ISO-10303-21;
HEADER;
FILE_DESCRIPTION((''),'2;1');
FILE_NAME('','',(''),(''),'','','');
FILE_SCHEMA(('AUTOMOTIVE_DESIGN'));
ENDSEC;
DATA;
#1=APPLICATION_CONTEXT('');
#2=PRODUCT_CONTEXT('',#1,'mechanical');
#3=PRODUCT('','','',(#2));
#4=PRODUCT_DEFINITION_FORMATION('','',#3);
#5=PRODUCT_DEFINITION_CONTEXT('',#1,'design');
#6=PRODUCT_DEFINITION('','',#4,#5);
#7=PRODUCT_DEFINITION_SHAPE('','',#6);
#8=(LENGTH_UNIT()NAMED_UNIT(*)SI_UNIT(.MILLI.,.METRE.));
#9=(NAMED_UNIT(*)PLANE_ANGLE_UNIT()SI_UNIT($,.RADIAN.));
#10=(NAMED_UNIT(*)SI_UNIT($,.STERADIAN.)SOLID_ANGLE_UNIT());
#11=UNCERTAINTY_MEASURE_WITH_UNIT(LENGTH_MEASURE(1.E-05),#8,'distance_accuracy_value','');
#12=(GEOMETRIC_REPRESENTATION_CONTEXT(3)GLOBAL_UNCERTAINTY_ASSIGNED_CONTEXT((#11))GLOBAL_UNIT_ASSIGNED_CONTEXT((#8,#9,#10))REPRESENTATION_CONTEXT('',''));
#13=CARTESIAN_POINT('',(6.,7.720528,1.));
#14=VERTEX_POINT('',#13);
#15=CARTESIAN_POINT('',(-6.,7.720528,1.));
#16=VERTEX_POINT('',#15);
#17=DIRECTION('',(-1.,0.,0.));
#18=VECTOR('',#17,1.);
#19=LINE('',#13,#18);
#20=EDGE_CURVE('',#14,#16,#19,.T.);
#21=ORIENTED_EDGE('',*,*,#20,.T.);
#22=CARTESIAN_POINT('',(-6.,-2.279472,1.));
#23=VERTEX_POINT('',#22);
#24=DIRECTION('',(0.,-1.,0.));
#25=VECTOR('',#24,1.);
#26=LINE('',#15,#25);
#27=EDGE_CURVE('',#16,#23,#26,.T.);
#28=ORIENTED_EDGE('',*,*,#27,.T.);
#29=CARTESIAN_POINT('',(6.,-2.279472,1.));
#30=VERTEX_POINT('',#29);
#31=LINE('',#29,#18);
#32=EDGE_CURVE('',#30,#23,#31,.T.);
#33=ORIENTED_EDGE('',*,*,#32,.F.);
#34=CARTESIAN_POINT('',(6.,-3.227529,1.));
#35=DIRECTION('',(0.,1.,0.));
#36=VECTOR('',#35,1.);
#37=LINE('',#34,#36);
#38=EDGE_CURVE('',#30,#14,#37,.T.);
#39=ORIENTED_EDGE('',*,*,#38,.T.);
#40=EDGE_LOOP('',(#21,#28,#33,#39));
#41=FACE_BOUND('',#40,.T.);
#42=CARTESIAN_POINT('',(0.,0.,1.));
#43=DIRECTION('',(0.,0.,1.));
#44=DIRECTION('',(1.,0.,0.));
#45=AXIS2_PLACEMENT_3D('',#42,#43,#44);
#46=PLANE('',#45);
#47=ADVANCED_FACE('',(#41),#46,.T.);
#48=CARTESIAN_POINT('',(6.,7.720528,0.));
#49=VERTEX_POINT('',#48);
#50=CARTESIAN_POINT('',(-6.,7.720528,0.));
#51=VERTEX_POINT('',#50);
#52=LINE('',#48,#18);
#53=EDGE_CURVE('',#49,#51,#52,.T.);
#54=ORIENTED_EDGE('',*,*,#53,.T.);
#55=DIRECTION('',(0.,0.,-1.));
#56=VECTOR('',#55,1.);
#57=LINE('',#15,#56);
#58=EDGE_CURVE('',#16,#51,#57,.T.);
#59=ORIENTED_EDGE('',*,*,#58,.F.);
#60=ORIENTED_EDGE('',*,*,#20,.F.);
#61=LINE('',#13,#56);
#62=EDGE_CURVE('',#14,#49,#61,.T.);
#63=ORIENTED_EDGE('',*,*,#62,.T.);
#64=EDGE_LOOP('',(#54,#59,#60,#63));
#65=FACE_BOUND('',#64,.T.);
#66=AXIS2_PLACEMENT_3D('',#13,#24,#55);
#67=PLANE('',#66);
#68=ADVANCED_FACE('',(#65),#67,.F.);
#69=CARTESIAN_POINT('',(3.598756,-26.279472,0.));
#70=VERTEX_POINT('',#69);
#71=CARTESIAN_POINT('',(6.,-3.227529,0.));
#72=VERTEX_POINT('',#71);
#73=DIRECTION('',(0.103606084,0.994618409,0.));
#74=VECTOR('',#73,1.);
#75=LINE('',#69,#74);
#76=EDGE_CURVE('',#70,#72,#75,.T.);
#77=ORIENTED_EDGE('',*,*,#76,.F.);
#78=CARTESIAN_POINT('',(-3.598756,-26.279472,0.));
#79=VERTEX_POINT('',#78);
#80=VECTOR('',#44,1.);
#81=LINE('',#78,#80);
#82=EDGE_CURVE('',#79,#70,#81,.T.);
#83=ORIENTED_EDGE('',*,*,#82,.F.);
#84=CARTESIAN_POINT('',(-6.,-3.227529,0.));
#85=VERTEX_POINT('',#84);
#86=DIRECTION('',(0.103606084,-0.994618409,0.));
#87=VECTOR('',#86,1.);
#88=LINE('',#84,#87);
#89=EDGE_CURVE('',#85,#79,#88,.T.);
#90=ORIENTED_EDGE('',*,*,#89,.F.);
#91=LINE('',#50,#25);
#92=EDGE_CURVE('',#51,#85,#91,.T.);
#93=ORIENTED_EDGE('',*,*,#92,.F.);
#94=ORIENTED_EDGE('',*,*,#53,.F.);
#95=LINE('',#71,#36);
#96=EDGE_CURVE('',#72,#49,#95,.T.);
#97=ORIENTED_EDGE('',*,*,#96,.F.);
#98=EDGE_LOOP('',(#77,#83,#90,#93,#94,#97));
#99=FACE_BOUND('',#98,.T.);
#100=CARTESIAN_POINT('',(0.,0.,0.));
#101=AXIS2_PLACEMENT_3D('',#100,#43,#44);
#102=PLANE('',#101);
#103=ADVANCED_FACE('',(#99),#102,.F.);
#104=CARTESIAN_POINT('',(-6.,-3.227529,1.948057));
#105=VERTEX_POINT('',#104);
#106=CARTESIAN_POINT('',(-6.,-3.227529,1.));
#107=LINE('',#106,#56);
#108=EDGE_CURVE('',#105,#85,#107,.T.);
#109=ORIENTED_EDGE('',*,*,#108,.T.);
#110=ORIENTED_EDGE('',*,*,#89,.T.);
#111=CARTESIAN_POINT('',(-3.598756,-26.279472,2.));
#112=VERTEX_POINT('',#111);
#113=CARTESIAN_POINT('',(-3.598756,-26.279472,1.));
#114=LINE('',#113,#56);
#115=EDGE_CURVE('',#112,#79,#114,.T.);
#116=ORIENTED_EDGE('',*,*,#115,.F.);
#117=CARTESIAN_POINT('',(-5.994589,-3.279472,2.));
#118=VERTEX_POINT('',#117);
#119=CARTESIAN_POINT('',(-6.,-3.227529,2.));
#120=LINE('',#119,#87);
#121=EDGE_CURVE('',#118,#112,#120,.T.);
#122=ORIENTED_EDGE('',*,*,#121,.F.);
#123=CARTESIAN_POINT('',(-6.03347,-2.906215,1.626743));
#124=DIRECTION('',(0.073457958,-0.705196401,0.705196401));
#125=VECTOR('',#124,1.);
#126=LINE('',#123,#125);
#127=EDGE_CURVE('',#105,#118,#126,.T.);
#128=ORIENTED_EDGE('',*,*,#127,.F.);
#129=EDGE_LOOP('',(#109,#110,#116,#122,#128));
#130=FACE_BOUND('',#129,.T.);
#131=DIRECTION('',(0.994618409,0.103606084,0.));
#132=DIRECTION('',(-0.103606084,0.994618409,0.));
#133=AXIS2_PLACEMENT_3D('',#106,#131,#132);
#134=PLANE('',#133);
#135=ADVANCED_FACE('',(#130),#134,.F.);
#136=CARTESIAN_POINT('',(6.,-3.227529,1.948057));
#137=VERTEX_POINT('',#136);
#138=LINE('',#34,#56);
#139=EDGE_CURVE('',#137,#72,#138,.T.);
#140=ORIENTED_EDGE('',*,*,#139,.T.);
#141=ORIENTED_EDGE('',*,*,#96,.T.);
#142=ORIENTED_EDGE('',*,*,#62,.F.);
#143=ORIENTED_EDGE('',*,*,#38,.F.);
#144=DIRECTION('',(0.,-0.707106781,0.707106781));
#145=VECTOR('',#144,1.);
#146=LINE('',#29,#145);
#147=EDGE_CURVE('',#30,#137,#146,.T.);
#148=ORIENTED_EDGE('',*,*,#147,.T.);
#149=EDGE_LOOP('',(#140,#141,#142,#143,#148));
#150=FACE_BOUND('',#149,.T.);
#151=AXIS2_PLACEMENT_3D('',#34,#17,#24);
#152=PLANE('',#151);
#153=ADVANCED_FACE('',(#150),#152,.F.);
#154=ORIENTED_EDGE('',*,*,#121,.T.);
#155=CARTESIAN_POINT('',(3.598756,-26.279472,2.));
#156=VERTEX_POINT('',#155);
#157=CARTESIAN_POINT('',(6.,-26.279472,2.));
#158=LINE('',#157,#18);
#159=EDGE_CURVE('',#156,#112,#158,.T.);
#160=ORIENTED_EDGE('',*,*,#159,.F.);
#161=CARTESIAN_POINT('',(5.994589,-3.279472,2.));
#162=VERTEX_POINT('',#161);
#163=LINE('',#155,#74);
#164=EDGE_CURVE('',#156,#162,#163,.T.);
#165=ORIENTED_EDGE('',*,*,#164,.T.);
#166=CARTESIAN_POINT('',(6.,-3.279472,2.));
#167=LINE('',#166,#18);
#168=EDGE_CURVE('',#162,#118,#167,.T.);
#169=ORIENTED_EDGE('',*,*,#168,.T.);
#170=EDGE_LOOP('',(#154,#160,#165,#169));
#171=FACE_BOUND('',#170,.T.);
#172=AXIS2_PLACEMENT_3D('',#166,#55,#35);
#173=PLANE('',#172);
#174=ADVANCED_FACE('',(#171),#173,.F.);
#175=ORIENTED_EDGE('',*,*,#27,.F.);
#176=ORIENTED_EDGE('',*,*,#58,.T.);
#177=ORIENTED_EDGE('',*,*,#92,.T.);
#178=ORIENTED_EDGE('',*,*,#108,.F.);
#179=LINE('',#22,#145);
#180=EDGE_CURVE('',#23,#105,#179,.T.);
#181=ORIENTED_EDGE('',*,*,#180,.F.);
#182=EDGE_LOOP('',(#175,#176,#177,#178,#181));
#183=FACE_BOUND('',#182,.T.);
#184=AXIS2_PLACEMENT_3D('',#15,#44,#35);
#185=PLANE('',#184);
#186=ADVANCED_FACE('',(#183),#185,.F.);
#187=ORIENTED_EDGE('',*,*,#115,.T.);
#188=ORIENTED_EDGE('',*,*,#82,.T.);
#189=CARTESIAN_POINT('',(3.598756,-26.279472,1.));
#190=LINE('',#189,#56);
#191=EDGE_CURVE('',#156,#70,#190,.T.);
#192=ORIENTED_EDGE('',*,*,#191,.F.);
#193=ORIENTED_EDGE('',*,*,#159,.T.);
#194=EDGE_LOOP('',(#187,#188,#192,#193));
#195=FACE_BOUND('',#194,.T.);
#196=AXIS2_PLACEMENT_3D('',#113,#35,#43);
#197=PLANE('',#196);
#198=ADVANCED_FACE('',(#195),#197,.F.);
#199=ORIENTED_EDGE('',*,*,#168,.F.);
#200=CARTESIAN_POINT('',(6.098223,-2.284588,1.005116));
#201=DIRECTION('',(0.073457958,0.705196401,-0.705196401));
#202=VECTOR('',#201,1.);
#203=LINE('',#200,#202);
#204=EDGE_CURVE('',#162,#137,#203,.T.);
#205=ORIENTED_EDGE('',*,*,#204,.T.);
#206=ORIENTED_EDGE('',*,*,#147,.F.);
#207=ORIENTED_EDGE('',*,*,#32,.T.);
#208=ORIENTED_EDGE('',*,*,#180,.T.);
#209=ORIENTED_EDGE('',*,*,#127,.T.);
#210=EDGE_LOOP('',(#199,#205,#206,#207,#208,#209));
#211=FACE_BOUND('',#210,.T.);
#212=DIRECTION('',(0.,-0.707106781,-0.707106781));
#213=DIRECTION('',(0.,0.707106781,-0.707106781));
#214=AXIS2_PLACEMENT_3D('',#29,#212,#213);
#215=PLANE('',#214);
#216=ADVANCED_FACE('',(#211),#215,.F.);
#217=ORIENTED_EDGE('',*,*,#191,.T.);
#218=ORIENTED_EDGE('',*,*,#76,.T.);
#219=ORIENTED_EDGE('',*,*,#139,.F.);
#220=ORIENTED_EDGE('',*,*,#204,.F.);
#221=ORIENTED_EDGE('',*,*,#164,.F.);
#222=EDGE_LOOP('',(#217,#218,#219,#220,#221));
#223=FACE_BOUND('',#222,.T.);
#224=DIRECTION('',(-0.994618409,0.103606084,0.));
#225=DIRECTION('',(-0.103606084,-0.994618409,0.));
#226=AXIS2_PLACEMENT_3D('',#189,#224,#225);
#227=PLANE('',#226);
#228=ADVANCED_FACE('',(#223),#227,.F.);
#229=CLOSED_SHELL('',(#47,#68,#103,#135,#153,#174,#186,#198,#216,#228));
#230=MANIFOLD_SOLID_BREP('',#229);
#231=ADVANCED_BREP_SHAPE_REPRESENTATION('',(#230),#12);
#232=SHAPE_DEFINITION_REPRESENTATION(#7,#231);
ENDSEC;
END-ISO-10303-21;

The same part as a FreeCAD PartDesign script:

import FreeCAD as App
import Part
import Sketcher
from FreeCAD import Vector
Q = App.Units.Quantity


def add_polygon(sketch, points):
    """Adds a closed chain of lines whose ends are joined by coincident constraints."""
    first, n = sketch.GeometryCount, len(points)
    for a, b in zip(points, points[1:] + points[:1]):
        sketch.addGeometry(Part.LineSegment(App.Vector(*a, 0), App.Vector(*b, 0)), False)
    for i in range(n):
        sketch.addConstraint(Sketcher.Constraint("Coincident", first + i, 2, first + (i + 1) % n, 1))

doc = App.newDocument("Part")
params = doc.addObject("Spreadsheet::Sheet", "Params")
for row, (alias, value) in enumerate([
    ("sketch1_width", "12 mm"),
    ("pad1_length", "1 mm"),
    ("sketch2_width", "24 mm"),
    ("sketch2_width2", "23 mm"),
    ("sketch2_height", "1 mm"),
    ("pad2_length", "12 mm"),
], start=1):
    params.set(f"A{row}", alias)
    params.set(f"B{row}", "=" + value)
    params.setAlias(f"B{row}", alias)

body = doc.addObject("PartDesign::Body", "Body")

# Sketch on XY plane
sketch1 = body.newObject("Sketcher::SketchObject", "Sketch")
sketch1.AttachmentSupport = (doc.getObject("XY_Plane"), [""])
sketch1.MapMode = "FlatFace"
add_polygon(sketch1, [(6, -3), (6, 8), (-6, 8), (-6, -3), (-4, -26), (4, -26)])  # lines 0-5
sketch1.addConstraint([
    Sketcher.Constraint("Vertical", 0),
    Sketcher.Constraint("Horizontal", 1),
    Sketcher.Constraint("Vertical", 2),
    Sketcher.Constraint("Horizontal", 4),
    Sketcher.Constraint("Symmetric", 2, 2, 5, 2, -2),
    Sketcher.Constraint("Equal", 3, 5),
    Sketcher.Constraint("DistanceX", 1, 2, 1, 1, Q("12 mm")),
    Sketcher.Constraint("DistanceY", 3, 2, 1, 2, Q("34 mm")),
    Sketcher.Constraint("DistanceX", 4, 1, 4, 2, Q("7.197512 mm")),
    Sketcher.Constraint("Distance", 3, Q("23.17667 mm")),
    Sketcher.Constraint("DistanceY", 2, 2, -1, 1, Q("3.227529 mm")),
])
sketch1.setExpression("Constraints[12]", "Params.sketch1_width")
pad1 = body.newObject("PartDesign::Pad", "Pad")
pad1.Profile = sketch1
pad1.setExpression("Length", "Params.pad1_length")

# Sketch on YZ plane
sketch2 = body.newObject("Sketcher::SketchObject", "Sketch001")
sketch2.AttachmentSupport = (doc.getObject("YZ_Plane"), [""])
sketch2.MapMode = "FlatFace"
add_polygon(sketch2, [(-26.3, 2), (-26.3, 1), (-2.3, 1), (-3.3, 2)])  # lines 0-3
sketch2.addConstraint([
    Sketcher.Constraint("Vertical", 0),
    Sketcher.Constraint("Horizontal", 1),
    Sketcher.Constraint("Horizontal", 3),
    Sketcher.Constraint("DistanceX", 1, 1, 1, 2, Q("24 mm")),
    Sketcher.Constraint("DistanceX", 3, 2, 3, 1, Q("23 mm")),
    Sketcher.Constraint("DistanceY", 0, 2, 0, 1, Q("1 mm")),
    Sketcher.Constraint("DistanceY", -1, 1, 0, 2, Q("1 mm")),
    Sketcher.Constraint("DistanceX", 0, 2, -1, 1, Q("26.279472 mm")),
])
sketch2.setExpression("Constraints[7]", "Params.sketch2_width")
sketch2.setExpression("Constraints[8]", "Params.sketch2_width2")
sketch2.setExpression("Constraints[9]", "Params.sketch2_height")
pad2 = body.newObject("PartDesign::Pad", "Pad001")
pad2.Profile = sketch2
pad2.setExpression("Length", "Params.pad2_length")
pad2.Midplane = True

# Sketch on XY plane
sketch3 = body.newObject("Sketcher::SketchObject", "Sketch002")
sketch3.AttachmentSupport = (doc.getObject("XY_Plane"), [""])
sketch3.MapMode = "FlatFace"
sketch3.AttachmentOffset = App.Placement(Vector(0, 0, 1), App.Rotation())
add_polygon(sketch3, [(-6, -26.3), (-6, -3.2), (-3.6, -26.3)])  # lines 0-2
add_polygon(sketch3, [(6, -26.3), (3.6, -26.3), (6, -3.2)])  # lines 3-5
sketch3.addConstraint([
    Sketcher.Constraint("Vertical", 0),
    Sketcher.Constraint("Horizontal", 2),
    Sketcher.Constraint("Horizontal", 3),
    Sketcher.Constraint("Vertical", 5),
    Sketcher.Constraint("Symmetric", 1, 2, 3, 2, -2),
    Sketcher.Constraint("Symmetric", 0, 2, 4, 2, -2),
    Sketcher.Constraint("DistanceX", 0, 2, -1, 1, Q("6 mm")),
    Sketcher.Constraint("Distance", 1, Q("23.17667 mm")),
    Sketcher.Constraint("DistanceX", 2, 2, 2, 1, Q("2.401244 mm")),
    Sketcher.Constraint("DistanceY", 0, 2, -1, 1, Q("3.227529 mm")),
])
pocket1 = body.newObject("PartDesign::Pocket", "Pocket")
pocket1.Profile = sketch3
pocket1.Type = "ThroughAll"
pocket1.Reversed = True

doc.recompute()
